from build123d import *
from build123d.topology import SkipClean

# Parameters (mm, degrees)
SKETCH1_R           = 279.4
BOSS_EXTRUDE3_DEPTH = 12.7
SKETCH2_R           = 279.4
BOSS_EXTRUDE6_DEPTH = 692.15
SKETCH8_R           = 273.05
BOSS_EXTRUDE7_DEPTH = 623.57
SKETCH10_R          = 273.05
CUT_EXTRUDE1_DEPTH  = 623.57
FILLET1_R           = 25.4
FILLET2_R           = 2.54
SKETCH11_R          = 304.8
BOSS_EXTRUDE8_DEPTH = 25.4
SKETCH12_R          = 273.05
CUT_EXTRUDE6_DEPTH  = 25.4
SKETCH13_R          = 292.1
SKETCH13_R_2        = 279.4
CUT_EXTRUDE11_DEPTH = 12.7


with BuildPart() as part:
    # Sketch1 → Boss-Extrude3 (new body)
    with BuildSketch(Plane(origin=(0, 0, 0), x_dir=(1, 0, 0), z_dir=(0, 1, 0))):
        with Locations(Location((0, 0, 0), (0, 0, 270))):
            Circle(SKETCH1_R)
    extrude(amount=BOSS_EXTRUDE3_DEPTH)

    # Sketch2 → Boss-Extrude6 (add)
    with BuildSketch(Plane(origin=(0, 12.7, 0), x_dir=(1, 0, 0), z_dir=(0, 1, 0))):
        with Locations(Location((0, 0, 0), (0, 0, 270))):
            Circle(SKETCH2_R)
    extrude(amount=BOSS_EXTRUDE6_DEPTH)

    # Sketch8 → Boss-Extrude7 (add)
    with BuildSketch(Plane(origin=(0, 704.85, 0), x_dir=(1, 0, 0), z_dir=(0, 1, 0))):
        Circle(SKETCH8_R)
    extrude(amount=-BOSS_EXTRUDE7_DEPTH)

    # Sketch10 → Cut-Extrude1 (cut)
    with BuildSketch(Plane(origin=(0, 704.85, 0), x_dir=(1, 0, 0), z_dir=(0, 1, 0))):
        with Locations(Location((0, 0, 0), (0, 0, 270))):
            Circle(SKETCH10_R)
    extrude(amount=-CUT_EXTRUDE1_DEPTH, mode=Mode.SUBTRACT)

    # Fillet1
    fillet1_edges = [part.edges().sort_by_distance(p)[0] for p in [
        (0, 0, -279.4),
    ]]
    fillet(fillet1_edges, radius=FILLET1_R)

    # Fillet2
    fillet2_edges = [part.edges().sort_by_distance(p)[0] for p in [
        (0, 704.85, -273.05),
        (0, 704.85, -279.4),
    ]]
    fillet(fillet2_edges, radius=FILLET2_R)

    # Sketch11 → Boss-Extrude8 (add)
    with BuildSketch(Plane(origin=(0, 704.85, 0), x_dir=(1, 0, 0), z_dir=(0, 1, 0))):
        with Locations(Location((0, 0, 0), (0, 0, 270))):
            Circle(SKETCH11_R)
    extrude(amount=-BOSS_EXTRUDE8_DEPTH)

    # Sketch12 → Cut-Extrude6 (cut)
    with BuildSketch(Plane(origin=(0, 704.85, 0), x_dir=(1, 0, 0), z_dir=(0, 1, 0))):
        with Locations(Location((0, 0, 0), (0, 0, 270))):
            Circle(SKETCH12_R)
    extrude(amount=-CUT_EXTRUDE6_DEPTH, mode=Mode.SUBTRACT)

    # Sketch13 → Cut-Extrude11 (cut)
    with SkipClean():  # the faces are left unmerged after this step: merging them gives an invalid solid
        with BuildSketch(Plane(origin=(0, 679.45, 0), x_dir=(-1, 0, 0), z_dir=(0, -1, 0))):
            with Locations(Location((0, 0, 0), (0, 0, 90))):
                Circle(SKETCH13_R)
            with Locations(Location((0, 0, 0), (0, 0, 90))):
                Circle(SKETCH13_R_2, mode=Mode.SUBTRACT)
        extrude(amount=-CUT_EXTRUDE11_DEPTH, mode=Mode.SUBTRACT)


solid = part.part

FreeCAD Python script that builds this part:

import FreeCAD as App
import Part
import Sketcher

V = App.Vector
Q = App.Units.Quantity


def edges_at(feature, points):
    """Names of the edges that pass closest to the given points."""
    edges = feature.Shape.Edges
    near = lambda p: min(range(len(edges)), key=lambda i: edges[i].distToShape(Part.Vertex(*p))[0])
    return sorted({f"Edge{near(p) + 1}" for p in points})

doc = App.newDocument("Part")
body = doc.addObject("PartDesign::Body", "Body")

# Sketch on XZ plane
sketch1 = doc.addObject("Sketcher::SketchObject", "Sketch")
body.addObject(sketch1)
sketch1.AttachmentSupport = (doc.XZ_Plane, [""])
sketch1.MapMode = "FlatFace"
sketch1.addGeometry(Part.Circle(V(0, 0, 0), V(0, 0, 1), 279), False)
sketch1.addConstraint(Sketcher.Constraint("Coincident", 0, 3, -1, 1))
sketch1.addConstraint(Sketcher.Constraint("Diameter", 0, Q("22 in")))
pad1 = doc.addObject("PartDesign::Pad", "Pad")
body.addObject(pad1)
pad1.Profile = sketch1
pad1.Length = Q("0.5 in")
pad1.Reversed = True

# Sketch on XZ plane
sketch2 = doc.addObject("Sketcher::SketchObject", "Sketch001")
body.addObject(sketch2)
sketch2.AttachmentSupport = (doc.XZ_Plane, [""])
sketch2.MapMode = "FlatFace"
sketch2.AttachmentOffset = App.Placement(V(0, 0, -0.5 * 25.4), App.Rotation())
sketch2.addGeometry(Part.Circle(V(0, 0, 0), V(0, 0, 1), 279), False)
sketch2.addConstraint(Sketcher.Constraint("Coincident", 0, 3, -1, 1))
sketch2.addConstraint(Sketcher.Constraint("Diameter", 0, Q("22 in")))
pad2 = doc.addObject("PartDesign::Pad", "Pad001")
body.addObject(pad2)
pad2.Profile = sketch2
pad2.Length = Q("27.25 in")
pad2.Reversed = True

# Sketch on XZ plane
sketch3 = doc.addObject("Sketcher::SketchObject", "Sketch002")
body.addObject(sketch3)
sketch3.AttachmentSupport = (doc.XZ_Plane, [""])
sketch3.MapMode = "FlatFace"
sketch3.AttachmentOffset = App.Placement(V(0, 0, -27.75 * 25.4), App.Rotation())
sketch3.addGeometry(Part.Circle(V(0, 0, 0), V(0, 0, 1), 273), False)
sketch3.addConstraint(Sketcher.Constraint("Coincident", 0, 3, -1, 1))
sketch3.addConstraint(Sketcher.Constraint("Diameter", 0, Q("21.5 in")))
pad3 = doc.addObject("PartDesign::Pad", "Pad002")
body.addObject(pad3)
pad3.Profile = sketch3
pad3.Length = Q("24.55 in")

# Sketch on XZ plane
sketch4 = doc.addObject("Sketcher::SketchObject", "Sketch003")
body.addObject(sketch4)
sketch4.AttachmentSupport = (doc.XZ_Plane, [""])
sketch4.MapMode = "FlatFace"
sketch4.AttachmentOffset = App.Placement(V(0, 0, -27.75 * 25.4), App.Rotation())
sketch4.addGeometry(Part.Circle(V(0, 0, 0), V(0, 0, 1), 273), False)
sketch4.addConstraint(Sketcher.Constraint("Coincident", 0, 3, -1, 1))
sketch4.addConstraint(Sketcher.Constraint("Diameter", 0, Q("21.5 in")))
pocket1 = doc.addObject("PartDesign::Pocket", "Pocket")
body.addObject(pocket1)
pocket1.Profile = sketch4
pocket1.Length = Q("24.55 in")
pocket1.Reversed = True
doc.recompute()

fillet = doc.addObject("PartDesign::Fillet", "Fillet")
body.addObject(fillet)
fillet.Base = (pocket1, edges_at(pocket1, [(0, 0, -279.4)]))
fillet.Radius = Q("1 in")
doc.recompute()

fillet2 = doc.addObject("PartDesign::Fillet", "Fillet001")
body.addObject(fillet2)
fillet2.Base = (fillet, edges_at(fillet, [(0, 704.85, -273.05), (0, 704.85, -279.4)]))
fillet2.Radius = Q("0.1 in")

# Sketch on XZ plane
sketch5 = doc.addObject("Sketcher::SketchObject", "Sketch004")
body.addObject(sketch5)
sketch5.AttachmentSupport = (doc.XZ_Plane, [""])
sketch5.MapMode = "FlatFace"
sketch5.AttachmentOffset = App.Placement(V(0, 0, -27.75 * 25.4), App.Rotation())
sketch5.addGeometry(Part.Circle(V(0, 0, 0), V(0, 0, 1), 305), False)
sketch5.addConstraint(Sketcher.Constraint("Coincident", 0, 3, -1, 1))
sketch5.addConstraint(Sketcher.Constraint("Diameter", 0, Q("24 in")))
pad4 = doc.addObject("PartDesign::Pad", "Pad003")
body.addObject(pad4)
pad4.Profile = sketch5
pad4.Length = Q("1 in")

# Sketch on XZ plane
sketch6 = doc.addObject("Sketcher::SketchObject", "Sketch005")
body.addObject(sketch6)
sketch6.AttachmentSupport = (doc.XZ_Plane, [""])
sketch6.MapMode = "FlatFace"
sketch6.AttachmentOffset = App.Placement(V(0, 0, -27.75 * 25.4), App.Rotation())
sketch6.addGeometry(Part.Circle(V(0, 0, 0), V(0, 0, 1), 273), False)
sketch6.addConstraint(Sketcher.Constraint("Coincident", 0, 3, -1, 1))
sketch6.addConstraint(Sketcher.Constraint("Diameter", 0, Q("21.5 in")))
pocket2 = doc.addObject("PartDesign::Pocket", "Pocket001")
body.addObject(pocket2)
pocket2.Profile = sketch6
pocket2.Length = Q("1 in")
pocket2.Reversed = True

# Sketch on XZ plane
sketch7 = doc.addObject("Sketcher::SketchObject", "Sketch006")
body.addObject(sketch7)
sketch7.AttachmentSupport = (doc.XZ_Plane, [""])
sketch7.MapMode = "FlatFace"
sketch7.AttachmentOffset = App.Placement(V(0, 0, -26.75 * 25.4), App.Rotation())
sketch7.addGeometry(Part.Circle(V(0, 0, 0), V(0, 0, 1), 292), False)
sketch7.addGeometry(Part.Circle(V(0, 0, 0), V(0, 0, 1), 279), False)
sketch7.addConstraint(Sketcher.Constraint("Coincident", 0, 3, -1, 1))
sketch7.addConstraint(Sketcher.Constraint("Coincident", 1, 3, -1, 1))
sketch7.addConstraint(Sketcher.Constraint("Diameter", 0, Q("23 in")))
sketch7.addConstraint(Sketcher.Constraint("Diameter", 1, Q("22 in")))
pocket3 = doc.addObject("PartDesign::Pocket", "Pocket002")
body.addObject(pocket3)
pocket3.Profile = sketch7
pocket3.Length = Q("0.5 in")

doc.recompute()
